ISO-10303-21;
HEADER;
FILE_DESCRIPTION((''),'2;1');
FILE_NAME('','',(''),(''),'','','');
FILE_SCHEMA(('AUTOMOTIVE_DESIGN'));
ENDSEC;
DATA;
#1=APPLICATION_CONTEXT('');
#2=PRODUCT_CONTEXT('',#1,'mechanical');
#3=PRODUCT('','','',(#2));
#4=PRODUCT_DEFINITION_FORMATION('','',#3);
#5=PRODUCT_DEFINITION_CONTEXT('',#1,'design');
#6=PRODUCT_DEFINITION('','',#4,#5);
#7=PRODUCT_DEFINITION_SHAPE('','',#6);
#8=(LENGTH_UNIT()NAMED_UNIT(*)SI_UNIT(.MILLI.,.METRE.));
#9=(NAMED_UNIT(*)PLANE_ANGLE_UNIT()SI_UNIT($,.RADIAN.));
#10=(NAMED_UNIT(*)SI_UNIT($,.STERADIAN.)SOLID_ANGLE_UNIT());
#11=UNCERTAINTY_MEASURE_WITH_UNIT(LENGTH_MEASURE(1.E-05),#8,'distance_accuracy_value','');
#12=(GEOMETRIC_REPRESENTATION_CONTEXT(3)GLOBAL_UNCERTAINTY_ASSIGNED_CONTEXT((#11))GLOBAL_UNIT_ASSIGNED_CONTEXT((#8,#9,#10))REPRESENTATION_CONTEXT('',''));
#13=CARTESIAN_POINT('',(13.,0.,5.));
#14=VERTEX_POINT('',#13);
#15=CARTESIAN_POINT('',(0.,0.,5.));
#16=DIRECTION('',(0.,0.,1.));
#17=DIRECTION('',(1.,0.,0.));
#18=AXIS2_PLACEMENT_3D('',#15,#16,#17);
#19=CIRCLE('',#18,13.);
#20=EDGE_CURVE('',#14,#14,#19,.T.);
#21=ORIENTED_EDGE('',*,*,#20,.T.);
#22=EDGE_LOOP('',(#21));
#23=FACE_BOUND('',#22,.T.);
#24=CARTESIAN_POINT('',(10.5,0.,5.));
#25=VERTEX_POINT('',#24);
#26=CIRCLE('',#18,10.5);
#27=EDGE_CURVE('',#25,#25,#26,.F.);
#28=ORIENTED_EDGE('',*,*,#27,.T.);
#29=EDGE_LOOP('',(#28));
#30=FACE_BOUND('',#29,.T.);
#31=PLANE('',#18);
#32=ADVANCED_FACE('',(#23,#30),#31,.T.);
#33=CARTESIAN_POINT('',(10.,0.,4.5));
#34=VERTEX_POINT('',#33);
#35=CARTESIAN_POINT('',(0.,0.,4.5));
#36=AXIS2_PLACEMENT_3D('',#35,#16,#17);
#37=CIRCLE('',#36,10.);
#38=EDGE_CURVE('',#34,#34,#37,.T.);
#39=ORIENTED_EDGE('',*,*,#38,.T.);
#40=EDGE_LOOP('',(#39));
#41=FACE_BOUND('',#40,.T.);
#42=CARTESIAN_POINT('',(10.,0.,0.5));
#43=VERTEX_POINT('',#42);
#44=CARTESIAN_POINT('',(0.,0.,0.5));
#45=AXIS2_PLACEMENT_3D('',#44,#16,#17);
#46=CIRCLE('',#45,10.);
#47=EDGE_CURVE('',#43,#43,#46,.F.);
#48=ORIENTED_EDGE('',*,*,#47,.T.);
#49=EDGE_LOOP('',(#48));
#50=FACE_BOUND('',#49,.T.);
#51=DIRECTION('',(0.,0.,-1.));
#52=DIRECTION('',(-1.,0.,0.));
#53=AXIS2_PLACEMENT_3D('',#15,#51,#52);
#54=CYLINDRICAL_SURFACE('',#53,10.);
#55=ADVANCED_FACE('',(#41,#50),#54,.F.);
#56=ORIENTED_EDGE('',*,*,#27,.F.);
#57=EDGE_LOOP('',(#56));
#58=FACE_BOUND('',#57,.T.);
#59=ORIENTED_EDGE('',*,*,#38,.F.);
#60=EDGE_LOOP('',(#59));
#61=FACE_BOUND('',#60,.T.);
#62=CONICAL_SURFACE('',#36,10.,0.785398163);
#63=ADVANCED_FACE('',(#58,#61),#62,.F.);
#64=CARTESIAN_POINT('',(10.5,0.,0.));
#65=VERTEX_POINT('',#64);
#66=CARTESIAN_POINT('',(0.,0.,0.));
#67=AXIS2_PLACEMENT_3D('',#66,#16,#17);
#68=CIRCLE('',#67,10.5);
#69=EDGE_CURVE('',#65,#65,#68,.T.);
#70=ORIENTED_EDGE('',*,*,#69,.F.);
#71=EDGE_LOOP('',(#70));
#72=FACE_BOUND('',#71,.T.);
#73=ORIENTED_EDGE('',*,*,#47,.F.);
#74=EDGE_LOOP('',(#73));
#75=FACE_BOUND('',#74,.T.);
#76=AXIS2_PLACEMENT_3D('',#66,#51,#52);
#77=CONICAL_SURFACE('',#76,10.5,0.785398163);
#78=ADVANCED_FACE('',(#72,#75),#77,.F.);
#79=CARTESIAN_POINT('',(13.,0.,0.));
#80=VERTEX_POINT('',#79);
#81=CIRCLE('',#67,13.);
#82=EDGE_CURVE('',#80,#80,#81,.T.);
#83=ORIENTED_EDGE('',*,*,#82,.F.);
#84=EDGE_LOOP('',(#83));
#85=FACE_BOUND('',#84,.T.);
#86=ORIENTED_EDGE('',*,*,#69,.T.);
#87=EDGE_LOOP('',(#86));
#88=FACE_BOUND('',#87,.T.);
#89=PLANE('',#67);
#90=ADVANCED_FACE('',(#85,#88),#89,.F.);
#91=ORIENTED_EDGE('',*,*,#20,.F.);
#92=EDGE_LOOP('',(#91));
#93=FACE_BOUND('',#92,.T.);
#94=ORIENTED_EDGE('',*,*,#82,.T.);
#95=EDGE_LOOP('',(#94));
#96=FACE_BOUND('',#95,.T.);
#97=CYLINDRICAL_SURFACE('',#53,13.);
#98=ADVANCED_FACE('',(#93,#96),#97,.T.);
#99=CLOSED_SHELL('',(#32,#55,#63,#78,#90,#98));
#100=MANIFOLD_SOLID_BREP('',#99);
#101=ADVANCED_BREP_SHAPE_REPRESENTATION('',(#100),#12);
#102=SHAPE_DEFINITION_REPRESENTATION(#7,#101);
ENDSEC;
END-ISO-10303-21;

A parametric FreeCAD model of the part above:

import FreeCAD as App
import Part
import Sketcher
Q = App.Units.Quantity


def edges_at(feature, points):
    """Names of the edges that pass closest to the given points."""
    edges = feature.Shape.Edges
    near = lambda p: min(range(len(edges)), key=lambda i: edges[i].distToShape(Part.Vertex(*p))[0])
    return sorted({f"Edge{near(p) + 1}" for p in points})

doc = App.newDocument("Part")
body = doc.addObject("PartDesign::Body", "Body")

sketch1 = doc.addObject("Sketcher::SketchObject", "Sketch")
body.addObject(sketch1)
sketch1.AttachmentSupport = (doc.XY_Plane, [""])
sketch1.MapMode = "FlatFace"
sketch1.addGeometry([
    Part.Circle(App.Vector(0, 0, 0), App.Vector(0, 0, 1), 13),
    Part.Circle(App.Vector(0, 0, 0), App.Vector(0, 0, 1), 10),
], False)
sketch1.addConstraint([
    Sketcher.Constraint("Coincident", 0, 3, -1, 1),
    Sketcher.Constraint("Coincident", 1, 3, -1, 1),
    Sketcher.Constraint("Diameter", 0, Q("26 mm")),
    Sketcher.Constraint("Diameter", 1, Q("20 mm")),
])
pad1 = doc.addObject("PartDesign::Pad", "Pad")
body.addObject(pad1)
pad1.Profile = sketch1
pad1.Length = 5
doc.recompute()

chamfer = doc.addObject("PartDesign::Chamfer", "Chamfer")
body.addObject(chamfer)
chamfer.Base = (pad1, edges_at(pad1, [(-10, 0, 0), (-10, 0, 5)]))
chamfer.Size = 0.5

doc.recompute()
